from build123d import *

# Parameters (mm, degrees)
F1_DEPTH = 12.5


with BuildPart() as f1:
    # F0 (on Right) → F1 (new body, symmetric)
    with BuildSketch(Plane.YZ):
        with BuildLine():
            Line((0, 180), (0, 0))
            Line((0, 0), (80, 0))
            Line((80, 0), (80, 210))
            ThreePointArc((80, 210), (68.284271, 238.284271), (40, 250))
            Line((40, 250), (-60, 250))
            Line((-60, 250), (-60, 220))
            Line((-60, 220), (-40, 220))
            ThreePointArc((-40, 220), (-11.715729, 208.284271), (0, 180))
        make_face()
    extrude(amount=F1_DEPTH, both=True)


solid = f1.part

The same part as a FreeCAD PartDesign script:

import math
import FreeCAD as App
import Part
import Sketcher
Q = App.Units.Quantity

doc = App.newDocument("Part")
params = doc.addObject("Spreadsheet::Sheet", "Params")
for row, (alias, value) in enumerate([
    ("sketch1_radius", "40.000001 mm"),
    ("sketch1_width", "80 mm"),
    ("sketch1_width2", "100 mm"),
    ("sketch1_height", "180 mm"),
    ("sketch1_height2", "210 mm"),
    ("pad1_length", "25 mm"),
], start=1):
    params.set(f"A{row}", alias)
    params.set(f"B{row}", "=" + value)
    params.setAlias(f"B{row}", alias)

body = doc.addObject("PartDesign::Body", "Body")

# Sketch on YZ plane
sketch1 = doc.addObject("Sketcher::SketchObject", "Sketch")
body.addObject(sketch1)
sketch1.AttachmentSupport = (doc.YZ_Plane, [""])
sketch1.MapMode = "FlatFace"
sketch1.addGeometry(Part.LineSegment(App.Vector(0, 180, 0), App.Vector(0, 0, 0)), False)
sketch1.addGeometry(Part.LineSegment(App.Vector(0, 0, 0), App.Vector(80, 0, 0)), False)
sketch1.addGeometry(Part.LineSegment(App.Vector(80, 0, 0), App.Vector(80, 210, 0)), False)
sketch1.addGeometry(Part.ArcOfCircle(Part.Circle(App.Vector(39.999999, 209.999999, 0), App.Vector(0, 0, 1), 40.000001), math.radians(0.000001), math.radians(89.999999)), False)
sketch1.addGeometry(Part.LineSegment(App.Vector(40, 250, 0), App.Vector(-60, 250, 0)), False)
sketch1.addGeometry(Part.LineSegment(App.Vector(-60, 250, 0), App.Vector(-60, 220, 0)), False)
sketch1.addGeometry(Part.LineSegment(App.Vector(-60, 220, 0), App.Vector(-40, 220, 0)), False)
sketch1.addGeometry(Part.ArcOfCircle(Part.Circle(App.Vector(-40.000001, 179.999999, 0), App.Vector(0, 0, 1), 40.000001), math.radians(0.000001), math.radians(89.999999)), False)
sketch1.addConstraint(Sketcher.Constraint("Coincident", 0, 2, 1, 1))
sketch1.addConstraint(Sketcher.Constraint("Coincident", 1, 2, 2, 1))
sketch1.addConstraint(Sketcher.Constraint("Tangent", 2, 2, 3, 1))
sketch1.addConstraint(Sketcher.Constraint("Tangent", 3, 2, 4, 1))
sketch1.addConstraint(Sketcher.Constraint("Coincident", 4, 2, 5, 1))
sketch1.addConstraint(Sketcher.Constraint("Coincident", 5, 2, 6, 1))
sketch1.addConstraint(Sketcher.Constraint("Tangent", 6, 2, 7, 2))
sketch1.addConstraint(Sketcher.Constraint("Tangent", 7, 1, 0, 1))
sketch1.addConstraint(Sketcher.Constraint("Vertical", 0))
sketch1.addConstraint(Sketcher.Constraint("Horizontal", 1))
sketch1.addConstraint(Sketcher.Constraint("Vertical", 2))
sketch1.addConstraint(Sketcher.Constraint("Horizontal", 4))
sketch1.addConstraint(Sketcher.Constraint("Vertical", 5))
sketch1.addConstraint(Sketcher.Constraint("Horizontal", 6))
sketch1.addConstraint(Sketcher.Constraint("Coincident", 0, 2, -1, 1))
sketch1.addConstraint(Sketcher.Constraint("Equal", 3, 7))
sketch1.addConstraint(Sketcher.Constraint("Radius", 3, Q("40.000001 mm")))
sketch1.addConstraint(Sketcher.Constraint("DistanceX", 1, 1, 1, 2, Q("80 mm")))
sketch1.addConstraint(Sketcher.Constraint("DistanceX", 4, 2, 4, 1, Q("100 mm")))
sketch1.addConstraint(Sketcher.Constraint("DistanceY", 0, 2, 0, 1, Q("180 mm")))
sketch1.addConstraint(Sketcher.Constraint("DistanceY", 2, 1, 2, 2, Q("210 mm")))
sketch1.setExpression("Constraints[16]", "Params.sketch1_radius")
sketch1.setExpression("Constraints[17]", "Params.sketch1_width")
sketch1.setExpression("Constraints[18]", "Params.sketch1_width2")
sketch1.setExpression("Constraints[19]", "Params.sketch1_height")
sketch1.setExpression("Constraints[20]", "Params.sketch1_height2")
pad1 = doc.addObject("PartDesign::Pad", "Pad")
body.addObject(pad1)
pad1.Profile = sketch1
pad1.setExpression("Length", "Params.pad1_length")
pad1.Midplane = True

doc.recompute()
